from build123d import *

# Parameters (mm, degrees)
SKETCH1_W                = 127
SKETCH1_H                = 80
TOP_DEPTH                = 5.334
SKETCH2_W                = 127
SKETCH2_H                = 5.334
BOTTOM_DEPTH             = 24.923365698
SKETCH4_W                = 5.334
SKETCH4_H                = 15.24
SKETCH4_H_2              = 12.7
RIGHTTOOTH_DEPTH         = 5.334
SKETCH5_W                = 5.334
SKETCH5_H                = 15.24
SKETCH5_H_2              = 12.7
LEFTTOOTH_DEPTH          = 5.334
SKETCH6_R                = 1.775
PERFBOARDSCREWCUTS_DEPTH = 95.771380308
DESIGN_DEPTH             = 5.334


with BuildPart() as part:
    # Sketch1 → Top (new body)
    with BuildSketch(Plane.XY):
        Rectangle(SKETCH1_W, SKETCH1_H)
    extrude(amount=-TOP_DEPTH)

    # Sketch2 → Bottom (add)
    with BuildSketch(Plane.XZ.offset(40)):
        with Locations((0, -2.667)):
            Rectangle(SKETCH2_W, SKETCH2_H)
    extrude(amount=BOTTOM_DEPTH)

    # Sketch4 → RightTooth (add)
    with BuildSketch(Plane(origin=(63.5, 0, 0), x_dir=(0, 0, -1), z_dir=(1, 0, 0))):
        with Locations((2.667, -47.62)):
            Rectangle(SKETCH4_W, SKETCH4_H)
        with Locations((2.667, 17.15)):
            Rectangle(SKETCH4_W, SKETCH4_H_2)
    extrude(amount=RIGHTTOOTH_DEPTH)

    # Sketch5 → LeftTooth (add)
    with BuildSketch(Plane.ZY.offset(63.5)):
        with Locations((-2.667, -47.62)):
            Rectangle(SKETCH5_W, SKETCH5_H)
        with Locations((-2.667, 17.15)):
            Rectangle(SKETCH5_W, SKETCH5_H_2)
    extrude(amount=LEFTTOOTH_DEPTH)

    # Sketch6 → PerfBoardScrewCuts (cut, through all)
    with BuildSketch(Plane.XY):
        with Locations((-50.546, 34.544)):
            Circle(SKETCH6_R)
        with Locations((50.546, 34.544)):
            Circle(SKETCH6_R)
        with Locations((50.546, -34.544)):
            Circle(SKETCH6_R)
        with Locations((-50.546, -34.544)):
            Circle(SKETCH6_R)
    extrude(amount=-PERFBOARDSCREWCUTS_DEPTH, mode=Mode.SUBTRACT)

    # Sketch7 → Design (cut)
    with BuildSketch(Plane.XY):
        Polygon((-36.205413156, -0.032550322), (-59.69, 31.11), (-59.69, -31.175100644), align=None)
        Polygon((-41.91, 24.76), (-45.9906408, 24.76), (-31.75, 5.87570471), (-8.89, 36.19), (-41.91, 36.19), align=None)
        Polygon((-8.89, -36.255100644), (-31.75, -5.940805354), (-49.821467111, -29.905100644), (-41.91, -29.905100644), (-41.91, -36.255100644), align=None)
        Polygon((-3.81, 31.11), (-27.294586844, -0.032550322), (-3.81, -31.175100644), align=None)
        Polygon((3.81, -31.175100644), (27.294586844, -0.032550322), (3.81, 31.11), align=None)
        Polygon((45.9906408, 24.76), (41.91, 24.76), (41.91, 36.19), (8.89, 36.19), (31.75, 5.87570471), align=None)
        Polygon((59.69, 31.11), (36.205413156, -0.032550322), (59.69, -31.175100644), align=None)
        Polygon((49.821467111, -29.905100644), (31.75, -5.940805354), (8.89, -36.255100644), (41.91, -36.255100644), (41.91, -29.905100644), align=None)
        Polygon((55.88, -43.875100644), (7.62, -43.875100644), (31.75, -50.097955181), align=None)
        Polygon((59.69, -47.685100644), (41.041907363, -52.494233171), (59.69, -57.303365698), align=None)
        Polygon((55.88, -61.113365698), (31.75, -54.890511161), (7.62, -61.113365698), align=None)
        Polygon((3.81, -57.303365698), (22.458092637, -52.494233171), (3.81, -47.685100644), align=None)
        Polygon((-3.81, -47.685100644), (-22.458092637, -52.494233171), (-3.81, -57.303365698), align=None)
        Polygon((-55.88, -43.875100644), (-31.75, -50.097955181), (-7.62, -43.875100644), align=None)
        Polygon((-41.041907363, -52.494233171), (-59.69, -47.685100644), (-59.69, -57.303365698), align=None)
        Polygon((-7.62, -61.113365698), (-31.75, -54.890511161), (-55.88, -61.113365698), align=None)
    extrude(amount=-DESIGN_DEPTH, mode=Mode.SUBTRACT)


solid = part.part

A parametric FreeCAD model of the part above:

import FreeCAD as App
import Part
import Sketcher
from FreeCAD import Vector
Q = App.Units.Quantity


def add_polygon(sketch, points):
    """Adds a closed chain of lines whose ends are joined by coincident constraints."""
    first, n = sketch.GeometryCount, len(points)
    for a, b in zip(points, points[1:] + points[:1]):
        sketch.addGeometry(Part.LineSegment(App.Vector(*a, 0), App.Vector(*b, 0)), False)
    for i in range(n):
        sketch.addConstraint(Sketcher.Constraint("Coincident", first + i, 2, first + (i + 1) % n, 1))

doc = App.newDocument("Part")
body = doc.addObject("PartDesign::Body", "Body")

# Sketch on XY plane
sketch1 = body.newObject("Sketcher::SketchObject", "Sketch")
sketch1.AttachmentSupport = (doc.getObject("XY_Plane"), [""])
sketch1.MapMode = "FlatFace"
add_polygon(sketch1, [(-64, 40), (-64, -40), (64, -40), (64, 40)])  # lines 0-3
sketch1.addConstraint([
    Sketcher.Constraint("Vertical", 0),
    Sketcher.Constraint("Horizontal", 1),
    Sketcher.Constraint("Vertical", 2),
    Sketcher.Constraint("Horizontal", 3),
    Sketcher.Constraint("Symmetric", 0, 2, 2, 2, -1, 1),
    Sketcher.Constraint("DistanceX", 1, 1, 1, 2, Q("5 in")),
    Sketcher.Constraint("DistanceY", 0, 2, 0, 1, 80.0),
])
pad1 = body.newObject("PartDesign::Pad", "Pad")
pad1.Profile = sketch1
pad1.Length = Q("0.21 in")
pad1.Reversed = True

# Sketch on XZ plane
sketch2 = body.newObject("Sketcher::SketchObject", "Sketch001")
sketch2.AttachmentSupport = (doc.getObject("XZ_Plane"), [""])
sketch2.MapMode = "FlatFace"
sketch2.AttachmentOffset = App.Placement(Vector(0, 0, 40), App.Rotation())
add_polygon(sketch2, [(-64, 0), (-64, -5), (64, -5), (64, 0)])  # lines 0-3
sketch2.addConstraint([
    Sketcher.Constraint("Vertical", 0),
    Sketcher.Constraint("Horizontal", 1),
    Sketcher.Constraint("Vertical", 2),
    Sketcher.Constraint("Horizontal", 3),
    Sketcher.Constraint("Symmetric", 2, 2, 3, 2, -1, 1),
    Sketcher.Constraint("DistanceX", 1, 1, 1, 2, Q("5 in")),
    Sketcher.Constraint("DistanceY", 0, 2, 0, 1, Q("0.21 in")),
])
pad2 = body.newObject("PartDesign::Pad", "Pad001")
pad2.Profile = sketch2
pad2.Length = 24.923366

# Sketch on YZ plane
sketch3 = body.newObject("Sketcher::SketchObject", "Sketch002")
sketch3.AttachmentSupport = (doc.getObject("YZ_Plane"), [""])
sketch3.MapMode = "FlatFace"
sketch3.AttachmentOffset = App.Placement(Vector(0, 0, 2.5 * 25.4), App.Rotation())
add_polygon(sketch3, [(-40, 0), (-55, 0), (-55, -5), (-40, -5)])  # lines 0-3
add_polygon(sketch3, [(24, 0), (11, 0), (11, -5), (24, -5)])  # lines 4-7
sketch3.addConstraint([
    Sketcher.Constraint("Horizontal", 0),
    Sketcher.Constraint("Vertical", 1),
    Sketcher.Constraint("Horizontal", 2),
    Sketcher.Constraint("Vertical", 3),
    Sketcher.Constraint("Horizontal", 4),
    Sketcher.Constraint("Vertical", 5),
    Sketcher.Constraint("Horizontal", 6),
    Sketcher.Constraint("Vertical", 7),
    Sketcher.Constraint("PointOnObject", 0, 2, -1),
    Sketcher.Constraint("PointOnObject", 4, 2, -1),
    Sketcher.Constraint("Horizontal", 2, 2, 5, 2),
    Sketcher.Constraint("DistanceX", 0, 2, 0, 1, Q("0.6 in")),
    Sketcher.Constraint("DistanceX", 4, 2, 4, 1, Q("0.5 in")),
    Sketcher.Constraint("DistanceX", 3, 2, 4, 2, Q("2 in")),
    Sketcher.Constraint("DistanceY", 1, 2, 1, 1, Q("0.21 in")),
    Sketcher.Constraint("DistanceX", 0, 2, -1, 1, 55.24),
])
pad3 = body.newObject("PartDesign::Pad", "Pad002")
pad3.Profile = sketch3
pad3.Length = Q("0.21 in")

# Sketch on YZ plane
sketch4 = body.newObject("Sketcher::SketchObject", "Sketch003")
sketch4.AttachmentSupport = (doc.getObject("YZ_Plane"), [""])
sketch4.MapMode = "FlatFace"
sketch4.AttachmentOffset = App.Placement(Vector(0, 0, -2.5 * 25.4), App.Rotation())
add_polygon(sketch4, [(-40, -5), (-55, -5), (-55, 0), (-40, 0)])  # lines 0-3
add_polygon(sketch4, [(24, -5), (11, -5), (11, 0), (24, 0)])  # lines 4-7
sketch4.addConstraint([
    Sketcher.Constraint("Horizontal", 0),
    Sketcher.Constraint("Vertical", 1),
    Sketcher.Constraint("Horizontal", 2),
    Sketcher.Constraint("Vertical", 3),
    Sketcher.Constraint("Horizontal", 4),
    Sketcher.Constraint("Vertical", 5),
    Sketcher.Constraint("Horizontal", 6),
    Sketcher.Constraint("Vertical", 7),
    Sketcher.Constraint("PointOnObject", 1, 2, -1),
    Sketcher.Constraint("PointOnObject", 5, 2, -1),
    Sketcher.Constraint("Horizontal", 3, 2, 4, 2),
    Sketcher.Constraint("DistanceX", 0, 2, 0, 1, Q("0.6 in")),
    Sketcher.Constraint("DistanceX", 4, 2, 4, 1, Q("0.5 in")),
    Sketcher.Constraint("DistanceX", 3, 2, 4, 2, Q("2 in")),
    Sketcher.Constraint("DistanceY", 1, 1, 1, 2, Q("0.21 in")),
    Sketcher.Constraint("DistanceX", 0, 2, -1, 1, 55.24),
])
pad4 = body.newObject("PartDesign::Pad", "Pad003")
pad4.Profile = sketch4
pad4.Length = Q("0.21 in")
pad4.Reversed = True

# Sketch on XY plane
sketch5 = body.newObject("Sketcher::SketchObject", "Sketch004")
sketch5.AttachmentSupport = (doc.getObject("XY_Plane"), [""])
sketch5.MapMode = "FlatFace"
sketch5.addGeometry([
    Part.Circle(Vector(-50.5, 34.5, 0), Vector(0, 0, 1), 1.8),
    Part.Circle(Vector(50.5, 34.5, 0), Vector(0, 0, 1), 1.8),
    Part.Circle(Vector(50.5, -34.5, 0), Vector(0, 0, 1), 1.8),
    Part.Circle(Vector(-50.5, -34.5, 0), Vector(0, 0, 1), 1.8),
], False)
sketch5.addConstraint([
    Sketcher.Constraint("Equal", 0, 1),
    Sketcher.Constraint("Equal", 1, 2),
    Sketcher.Constraint("Equal", 2, 3),
    Sketcher.Constraint("Symmetric", 0, 3, 2, 3, -1, 1),
    Sketcher.Constraint("Symmetric", 1, 3, 3, 3, -1, 1),
    Sketcher.Constraint("Symmetric", 0, 3, 1, 3, -2),
    Sketcher.Constraint("Diameter", 0, 3.55),
    Sketcher.Constraint("DistanceX", 0, 3, -1, 1, Q("1.99 in")),
    Sketcher.Constraint("DistanceY", -1, 1, 0, 3, Q("1.36 in")),
])
pocket1 = body.newObject("PartDesign::Pocket", "Pocket")
pocket1.Profile = sketch5
pocket1.Type = "ThroughAll"

# Sketch on XY plane
sketch6 = body.newObject("Sketcher::SketchObject", "Sketch005")
sketch6.AttachmentSupport = (doc.getObject("XY_Plane"), [""])
sketch6.MapMode = "FlatFace"
add_polygon(sketch6, [(-36.2, 0), (-59.7, 31.1), (-59.7, -31.2)])  # lines 0-2
add_polygon(sketch6, [(-41.9, 24.8), (-46, 24.8), (-31.8, 5.9), (-8.9, 36.2), (-41.9, 36.2)])  # lines 3-7
add_polygon(sketch6, [(-8.9, -36.3), (-31.8, -5.9), (-49.8, -29.9), (-41.9, -29.9), (-41.9, -36.3)])  # lines 8-12
add_polygon(sketch6, [(-3.8, 31.1), (-27.3, 0), (-3.8, -31.2)])  # lines 13-15
add_polygon(sketch6, [(3.8, -31.2), (27.3, 0), (3.8, 31.1)])  # lines 16-18
add_polygon(sketch6, [(46, 24.8), (41.9, 24.8), (41.9, 36.2), (8.9, 36.2), (31.8, 5.9)])  # lines 19-23
add_polygon(sketch6, [(59.7, 31.1), (36.2, 0), (59.7, -31.2)])  # lines 24-26
add_polygon(sketch6, [(49.8, -29.9), (31.8, -5.9), (8.9, -36.3), (41.9, -36.3), (41.9, -29.9)])  # lines 27-31
add_polygon(sketch6, [(55.9, -43.9), (7.6, -43.9), (31.8, -50.1)])  # lines 32-34
add_polygon(sketch6, [(59.7, -47.7), (41, -52.5), (59.7, -57.3)])  # lines 35-37
add_polygon(sketch6, [(55.9, -61.1), (31.8, -54.9), (7.6, -61.1)])  # lines 38-40
add_polygon(sketch6, [(3.8, -57.3), (22.5, -52.5), (3.8, -47.7)])  # lines 41-43
add_polygon(sketch6, [(-3.8, -47.7), (-22.5, -52.5), (-3.8, -57.3)])  # lines 44-46
add_polygon(sketch6, [(-55.9, -43.9), (-31.8, -50.1), (-7.6, -43.9)])  # lines 47-49
add_polygon(sketch6, [(-41, -52.5), (-59.7, -47.7), (-59.7, -57.3)])  # lines 50-52
add_polygon(sketch6, [(-7.6, -61.1), (-31.8, -54.9), (-55.9, -61.1)])  # lines 53-55
sketch6.addConstraint([
    Sketcher.Constraint("Vertical", 1),
    Sketcher.Constraint("Horizontal", 3),
    Sketcher.Constraint("Horizontal", 6),
    Sketcher.Constraint("Vertical", 7),
    Sketcher.Constraint("Horizontal", 10),
    Sketcher.Constraint("Vertical", 11),
    Sketcher.Constraint("Horizontal", 12),
    Sketcher.Constraint("Vertical", 15),
    Sketcher.Constraint("Vertical", 18),
    Sketcher.Constraint("Horizontal", 19),
    Sketcher.Constraint("Vertical", 20),
    Sketcher.Constraint("Horizontal", 21),
    Sketcher.Constraint("Vertical", 26),
    Sketcher.Constraint("Horizontal", 29),
    Sketcher.Constraint("Vertical", 30),
    Sketcher.Constraint("Horizontal", 31),
    Sketcher.Constraint("Horizontal", 32),
    Sketcher.Constraint("Vertical", 37),
    Sketcher.Constraint("Horizontal", 40),
    Sketcher.Constraint("Vertical", 43),
    Sketcher.Constraint("Vertical", 46),
    Sketcher.Constraint("Horizontal", 49),
    Sketcher.Constraint("Vertical", 51),
    Sketcher.Constraint("Horizontal", 55),
    Sketcher.Constraint("Symmetric", 13, 2, 16, 2, -2),
    Sketcher.Constraint("Symmetric", 15, 2, 17, 2, -2),
    Sketcher.Constraint("Symmetric", 7, 2, 19, 2, -2),
    Sketcher.Constraint("Symmetric", 5, 2, 21, 2, -2),
    Sketcher.Constraint("Symmetric", 4, 2, 22, 2, -2),
    Sketcher.Constraint("Symmetric", 2, 2, 24, 2, -2),
    Sketcher.Constraint("Symmetric", 1, 2, 25, 2, -2),
    Sketcher.Constraint("Symmetric", 8, 2, 27, 2, -2),
    Sketcher.Constraint("Symmetric", 12, 2, 28, 2, -2),
    Sketcher.Constraint("Symmetric", 10, 2, 30, 2, -2),
    Sketcher.Constraint("Symmetric", 41, 2, 44, 2, -2),
    Sketcher.Constraint("Symmetric", 43, 2, 45, 2, -2),
    Sketcher.Constraint("Symmetric", 33, 2, 47, 2, -2),
    Sketcher.Constraint("Symmetric", 32, 2, 48, 2, -2),
    Sketcher.Constraint("Symmetric", 37, 2, 50, 2, -2),
    Sketcher.Constraint("Symmetric", 35, 2, 52, 2, -2),
    Sketcher.Constraint("Symmetric", 38, 2, 53, 2, -2),
    Sketcher.Constraint("Symmetric", 40, 2, 54, 2, -2),
    Sketcher.Constraint("Parallel", 0, 4),
    Sketcher.Constraint("Parallel", 2, 5),
    Sketcher.Constraint("Parallel", 4, 8),
    Sketcher.Constraint("Parallel", 5, 9),
    Sketcher.Constraint("Parallel", 9, 13),
    Sketcher.Constraint("Parallel", 8, 14),
    Sketcher.Constraint("Parallel", 13, 16),
    Sketcher.Constraint("Parallel", 14, 17),
    Sketcher.Constraint("Parallel", 16, 23),
    Sketcher.Constraint("Parallel", 23, 24),
    Sketcher.Constraint("Parallel", 25, 27),
    Sketcher.Constraint("Parallel", 34, 35),
    Sketcher.Constraint("Parallel", 33, 36),
    Sketcher.Constraint("Parallel", 36, 38),
    Sketcher.Constraint("Parallel", 35, 39),
    Sketcher.Constraint("Parallel", 39, 41),
    Sketcher.Constraint("Parallel", 38, 42),
    Sketcher.Constraint("Parallel", 41, 44),
    Sketcher.Constraint("Parallel", 42, 45),
    Sketcher.Constraint("Parallel", 45, 47),
    Sketcher.Constraint("Parallel", 48, 52),
    Sketcher.Constraint("Parallel", 50, 53),
    Sketcher.Constraint("Horizontal", 2, 2, 13, 2),
    Sketcher.Constraint("Horizontal", 1, 2, 14, 2),
    Sketcher.Constraint("Horizontal", 35, 2, 41, 2),
    Sketcher.Constraint("Horizontal", 37, 2, 42, 2),
    Sketcher.Constraint("Vertical", 4, 2, 8, 2),
    Sketcher.Constraint("Vertical", 7, 2, 10, 2),
    Sketcher.Constraint("Vertical", 5, 2, 12, 2),
    Sketcher.Constraint("Vertical", 27, 2, 33, 2),
    Sketcher.Constraint("Vertical", 26, 2, 36, 2),
    Sketcher.Constraint("Vertical", 33, 2, 38, 2),
    Sketcher.Constraint("Vertical", 32, 2, 39, 2),
    Sketcher.Constraint("Vertical", 18, 2, 42, 2),
    Sketcher.Constraint("DistanceX", 6, 2, 6, 1, Q("1.3 in")),
    Sketcher.Constraint("DistanceX", 32, 2, 32, 1, Q("1.9 in")),
    Sketcher.Constraint("DistanceX", 0, 2, 5, 2, Q("2 in")),
    Sketcher.Constraint("DistanceX", 5, 2, 19, 2, Q("2 in")),
    Sketcher.Constraint("DistanceY", 7, 2, 7, 1, Q("0.45 in")),
    Sketcher.Constraint("DistanceY", 11, 2, 11, 1, Q("0.25 in")),
    Sketcher.Constraint("DistanceX", -1, 1, 32, 2, Q("0.3 in")),
    Sketcher.Constraint("DistanceY", 0, 2, 5, 2, Q("0.2 in")),
    Sketcher.Constraint("DistanceY", 11, 2, 1, 2, Q("0.2 in")),
    Sketcher.Constraint("DistanceX", 12, 2, 14, 2, Q("0.2 in")),
    Sketcher.Constraint("DistanceY", 32, 2, 28, 2, Q("0.3 in")),
    Sketcher.Constraint("DistanceY", 37, 2, 31, 2, Q("0.7 in")),
    Sketcher.Constraint("DistanceY", 40, 2, 36, 2, Q("0.15 in")),
    Sketcher.Constraint("DistanceY", 1, 2, 1, 1, 62.285101),
    Sketcher.Constraint("Distance", 4, 23.651902),
    Sketcher.Constraint("DistanceY", -1, 1, 0, 2, 31.11),
    Sketcher.Constraint("DistanceY", 37, 1, 37, 2, 9.618265),
    Sketcher.Constraint("DistanceY", 38, 2, -1, 1, 54.890511),
])
pocket2 = body.newObject("PartDesign::Pocket", "Pocket001")
pocket2.Profile = sketch6
pocket2.Length = Q("0.21 in")

doc.recompute()
